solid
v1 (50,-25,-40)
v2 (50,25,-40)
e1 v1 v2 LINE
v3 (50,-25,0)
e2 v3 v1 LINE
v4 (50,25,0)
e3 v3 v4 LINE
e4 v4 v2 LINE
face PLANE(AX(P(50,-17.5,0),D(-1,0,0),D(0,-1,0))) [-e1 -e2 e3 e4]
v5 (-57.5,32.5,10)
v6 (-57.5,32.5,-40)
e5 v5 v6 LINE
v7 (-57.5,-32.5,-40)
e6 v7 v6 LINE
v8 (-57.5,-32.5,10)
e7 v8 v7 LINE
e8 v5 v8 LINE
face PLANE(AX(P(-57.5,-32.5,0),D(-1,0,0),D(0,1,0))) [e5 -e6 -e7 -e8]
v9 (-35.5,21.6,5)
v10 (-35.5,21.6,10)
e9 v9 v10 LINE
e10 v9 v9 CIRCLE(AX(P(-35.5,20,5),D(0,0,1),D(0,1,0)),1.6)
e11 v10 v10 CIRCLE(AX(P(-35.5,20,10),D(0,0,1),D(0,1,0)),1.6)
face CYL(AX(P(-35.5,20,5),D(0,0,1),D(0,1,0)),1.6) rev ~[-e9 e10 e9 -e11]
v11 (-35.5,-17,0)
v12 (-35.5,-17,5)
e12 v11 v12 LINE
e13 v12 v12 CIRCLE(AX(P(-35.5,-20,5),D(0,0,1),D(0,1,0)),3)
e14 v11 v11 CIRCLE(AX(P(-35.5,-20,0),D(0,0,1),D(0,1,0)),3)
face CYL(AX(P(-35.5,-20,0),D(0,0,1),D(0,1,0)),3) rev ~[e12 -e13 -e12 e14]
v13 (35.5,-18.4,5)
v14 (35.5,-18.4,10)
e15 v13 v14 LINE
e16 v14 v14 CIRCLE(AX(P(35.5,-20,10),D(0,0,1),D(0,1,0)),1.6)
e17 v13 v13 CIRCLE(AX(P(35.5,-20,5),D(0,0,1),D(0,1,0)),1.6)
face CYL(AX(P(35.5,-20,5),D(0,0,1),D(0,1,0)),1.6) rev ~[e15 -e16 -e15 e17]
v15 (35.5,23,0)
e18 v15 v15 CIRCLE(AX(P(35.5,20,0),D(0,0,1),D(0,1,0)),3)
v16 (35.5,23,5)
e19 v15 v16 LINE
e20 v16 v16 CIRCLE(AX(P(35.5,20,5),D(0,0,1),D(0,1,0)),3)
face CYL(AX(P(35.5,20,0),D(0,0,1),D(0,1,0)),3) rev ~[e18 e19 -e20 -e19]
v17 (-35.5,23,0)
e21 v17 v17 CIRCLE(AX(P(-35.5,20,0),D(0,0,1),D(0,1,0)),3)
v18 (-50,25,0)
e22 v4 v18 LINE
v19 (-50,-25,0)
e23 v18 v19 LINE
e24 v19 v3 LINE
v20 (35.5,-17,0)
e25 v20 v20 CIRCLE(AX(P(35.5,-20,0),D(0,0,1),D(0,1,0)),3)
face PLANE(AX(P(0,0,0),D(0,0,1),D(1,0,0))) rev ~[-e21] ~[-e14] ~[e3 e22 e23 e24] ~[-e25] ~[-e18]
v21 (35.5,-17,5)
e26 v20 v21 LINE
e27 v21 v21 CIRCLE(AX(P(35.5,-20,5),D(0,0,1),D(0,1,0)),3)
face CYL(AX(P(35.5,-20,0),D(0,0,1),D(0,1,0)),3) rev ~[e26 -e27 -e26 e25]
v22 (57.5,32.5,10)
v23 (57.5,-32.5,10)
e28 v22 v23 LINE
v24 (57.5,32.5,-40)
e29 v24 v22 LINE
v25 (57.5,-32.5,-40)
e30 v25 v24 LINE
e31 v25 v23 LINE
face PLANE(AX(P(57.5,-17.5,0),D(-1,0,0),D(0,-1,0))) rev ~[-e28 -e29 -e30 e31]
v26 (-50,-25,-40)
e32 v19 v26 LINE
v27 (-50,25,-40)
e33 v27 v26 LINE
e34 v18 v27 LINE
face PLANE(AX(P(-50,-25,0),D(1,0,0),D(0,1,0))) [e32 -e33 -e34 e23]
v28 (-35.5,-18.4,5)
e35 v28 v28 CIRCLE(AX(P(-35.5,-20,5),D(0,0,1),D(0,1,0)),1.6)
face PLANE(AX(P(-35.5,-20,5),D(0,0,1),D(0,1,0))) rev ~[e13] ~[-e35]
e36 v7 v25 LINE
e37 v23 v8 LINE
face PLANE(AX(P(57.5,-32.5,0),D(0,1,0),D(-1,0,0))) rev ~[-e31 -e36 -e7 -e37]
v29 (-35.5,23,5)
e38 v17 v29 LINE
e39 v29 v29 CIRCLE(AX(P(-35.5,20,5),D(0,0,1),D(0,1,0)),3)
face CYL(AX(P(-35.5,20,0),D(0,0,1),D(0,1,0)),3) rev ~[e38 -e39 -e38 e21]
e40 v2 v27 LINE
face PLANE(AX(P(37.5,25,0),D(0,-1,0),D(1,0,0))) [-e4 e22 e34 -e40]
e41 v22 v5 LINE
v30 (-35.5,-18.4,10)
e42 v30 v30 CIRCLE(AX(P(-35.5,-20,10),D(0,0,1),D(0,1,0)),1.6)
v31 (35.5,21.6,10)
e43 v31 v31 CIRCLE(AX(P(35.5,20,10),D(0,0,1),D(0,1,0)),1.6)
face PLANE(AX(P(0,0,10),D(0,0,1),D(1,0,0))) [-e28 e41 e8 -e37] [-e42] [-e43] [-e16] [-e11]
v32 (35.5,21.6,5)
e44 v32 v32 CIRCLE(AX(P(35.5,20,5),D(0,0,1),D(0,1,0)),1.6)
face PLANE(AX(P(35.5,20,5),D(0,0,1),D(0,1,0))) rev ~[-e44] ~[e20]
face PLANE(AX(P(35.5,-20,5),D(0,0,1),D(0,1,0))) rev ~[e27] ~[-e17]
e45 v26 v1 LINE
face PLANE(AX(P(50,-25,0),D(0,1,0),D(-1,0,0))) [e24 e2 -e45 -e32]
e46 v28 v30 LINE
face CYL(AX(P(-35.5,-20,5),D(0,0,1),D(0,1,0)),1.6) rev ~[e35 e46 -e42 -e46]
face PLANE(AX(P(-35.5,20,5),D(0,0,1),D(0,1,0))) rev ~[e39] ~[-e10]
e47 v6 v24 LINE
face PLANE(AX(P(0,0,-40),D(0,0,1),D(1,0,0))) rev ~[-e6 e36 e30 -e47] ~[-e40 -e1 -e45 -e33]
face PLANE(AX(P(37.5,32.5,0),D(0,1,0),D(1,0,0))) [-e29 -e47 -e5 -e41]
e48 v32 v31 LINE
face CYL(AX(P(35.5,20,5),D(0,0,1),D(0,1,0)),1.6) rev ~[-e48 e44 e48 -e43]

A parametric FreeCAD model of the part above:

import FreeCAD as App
import Part
import Sketcher


def add_polygon(sketch, points):
    """Adds a closed chain of lines whose ends are joined by coincident constraints."""
    first, n = sketch.GeometryCount, len(points)
    for a, b in zip(points, points[1:] + points[:1]):
        sketch.addGeometry(Part.LineSegment(App.Vector(*a, 0), App.Vector(*b, 0)), False)
    for i in range(n):
        sketch.addConstraint(Sketcher.Constraint("Coincident", first + i, 2, first + (i + 1) % n, 1))

doc = App.newDocument("Part")
body = doc.addObject("PartDesign::Body", "Body")
body.AllowCompound = True

sketch1 = body.newObject("Sketcher::SketchObject", "Sketch")
sketch1.AttachmentSupport = (doc.getObject("XY_Plane"), [""])
sketch1.MapMode = "FlatFace"
add_polygon(sketch1, [(38, -32), (58, -32), (58, -18), (50, -18), (50, -25), (38, -25)])
add_polygon(sketch1, [(-58, -32), (-38, -32), (-38, -25), (-50, -25), (-50, -18), (-58, -18)])
add_polygon(sketch1, [(50, 18), (58, 18), (58, 32), (38, 32), (38, 25), (50, 25)])
add_polygon(sketch1, [(-58, 32), (-58, 18), (-50, 18), (-50, 25), (-38, 25), (-38, 32)])
sketch1.addConstraint([
    Sketcher.Constraint("Horizontal", 0),
    Sketcher.Constraint("Vertical", 1),
    Sketcher.Constraint("Horizontal", 2),
    Sketcher.Constraint("Vertical", 3),
    Sketcher.Constraint("Horizontal", 4),
    Sketcher.Constraint("Vertical", 5),
    Sketcher.Constraint("Horizontal", 6),
    Sketcher.Constraint("Vertical", 7),
    Sketcher.Constraint("Horizontal", 8),
    Sketcher.Constraint("Vertical", 9),
    Sketcher.Constraint("Horizontal", 10),
    Sketcher.Constraint("Vertical", 11),
    Sketcher.Constraint("Horizontal", 12),
    Sketcher.Constraint("Vertical", 13),
    Sketcher.Constraint("Horizontal", 14),
    Sketcher.Constraint("Vertical", 15),
    Sketcher.Constraint("Horizontal", 16),
    Sketcher.Constraint("Vertical", 17),
    Sketcher.Constraint("Vertical", 18),
    Sketcher.Constraint("Horizontal", 19),
    Sketcher.Constraint("Vertical", 20),
    Sketcher.Constraint("Horizontal", 21),
    Sketcher.Constraint("Vertical", 22),
    Sketcher.Constraint("Horizontal", 23),
    Sketcher.Constraint("Symmetric", 10, 2, 12, 2, -1, 1),
    Sketcher.Constraint("Symmetric", 6, 2, 14, 2, -1, 1),
    Sketcher.Constraint("Symmetric", 8, 2, 16, 2, -1, 1),
    Sketcher.Constraint("Symmetric", 1, 2, 18, 2, -1, 1),
    Sketcher.Constraint("Symmetric", 3, 2, 20, 2, -1, 1),
    Sketcher.Constraint("Symmetric", 5, 2, 22, 2, -1, 1),
    Sketcher.Constraint("Symmetric", 5, 2, 6, 2, -2),
    Sketcher.Constraint("Symmetric", 3, 2, 8, 2, -2),
    Sketcher.Constraint("Symmetric", 1, 2, 10, 2, -2),
    Sketcher.Constraint("Equal", 19, 3),
    Sketcher.Constraint("Equal", 3, 5),
    Sketcher.Constraint("DistanceX", 0, 1, 0, 2, 20.0),
    Sketcher.Constraint("DistanceY", 1, 1, 1, 2, 15.0),
    Sketcher.Constraint("DistanceX", -1, 1, 2, 2, 50.0),
    Sketcher.Constraint("DistanceY", 0, 2, 12, 2, 50.0),
])
pad1 = body.newObject("PartDesign::Pad", "Pad")
pad1.Profile = sketch1
pad1.Length = 40
pad1.Reversed = True

sketch2 = body.newObject("Sketcher::SketchObject", "Sketch001")
sketch2.AttachmentSupport = (doc.getObject("XY_Plane"), [""])
sketch2.MapMode = "FlatFace"
add_polygon(sketch2, [(58, -32), (58, 32), (-58, 32), (-58, -32)])
sketch2.addConstraint([
    Sketcher.Constraint("Vertical", 0),
    Sketcher.Constraint("Horizontal", 1),
    Sketcher.Constraint("Vertical", 2),
    Sketcher.Constraint("Horizontal", 3),
    Sketcher.Constraint("Symmetric", 0, 2, 2, 2, -1, 1),
    Sketcher.Constraint("DistanceX", 1, 2, 1, 1, 115.0),
    Sketcher.Constraint("DistanceY", 0, 1, 0, 2, 65.0),
])
pad2 = body.newObject("PartDesign::Pad", "Pad001")
pad2.Profile = sketch2
pad2.Length = 10

sketch3 = body.newObject("Sketcher::SketchObject", "Sketch002")
sketch3.AttachmentSupport = (doc.getObject("XY_Plane"), [""])
sketch3.MapMode = "FlatFace"
sketch3.addGeometry([
    Part.Circle(App.Vector(-35.5, 20, 0), App.Vector(0, 0, 1), 1.6),
    Part.Circle(App.Vector(35.5, 20, 0), App.Vector(0, 0, 1), 1.6),
    Part.Circle(App.Vector(35.5, -20, 0), App.Vector(0, 0, 1), 1.6),
    Part.Circle(App.Vector(-35.5, -20, 0), App.Vector(0, 0, 1), 1.6),
], False)
sketch3.addConstraint([
    Sketcher.Constraint("Equal", 0, 1),
    Sketcher.Constraint("Equal", 1, 2),
    Sketcher.Constraint("Equal", 2, 3),
    Sketcher.Constraint("Symmetric", 0, 3, 2, 3, -1, 1),
    Sketcher.Constraint("Symmetric", 1, 3, 3, 3, -1, 1),
    Sketcher.Constraint("Symmetric", 0, 3, 1, 3, -2),
    Sketcher.Constraint("Diameter", 0, 3.2),
    Sketcher.Constraint("DistanceY", -1, 1, 0, 3, 20.0),
    Sketcher.Constraint("DistanceX", 0, 3, 1, 3, 71.0),
])
doc.recompute()
hole = body.newObject("PartDesign::Hole", "Hole")
hole.Profile = sketch3
hole.ThreadType = "None"
hole.Diameter = 3.2
hole.DepthType = "ThroughAll"
hole.HoleCutType = "Counterbore"
hole.HoleCutDiameter = 6
hole.HoleCutDepth = 5
hole.Reversed = True

sketch4 = body.newObject("Sketcher::SketchObject", "Sketch003")
sketch4.AttachmentSupport = (doc.getObject("XY_Plane"), [""])
sketch4.MapMode = "FlatFace"
add_polygon(sketch4, [(-38, -32), (38, -32), (38, -25), (-38, -25)])
add_polygon(sketch4, [(50, -18), (58, -18), (58, 18), (50, 18)])
add_polygon(sketch4, [(-58, 18), (-58, -18), (-50, -18), (-50, 18)])
add_polygon(sketch4, [(38, 25), (38, 32), (-38, 32), (-38, 25)])
sketch4.addConstraint([
    Sketcher.Constraint("Horizontal", 0),
    Sketcher.Constraint("Vertical", 1),
    Sketcher.Constraint("Horizontal", 2),
    Sketcher.Constraint("Vertical", 3),
    Sketcher.Constraint("Horizontal", 4),
    Sketcher.Constraint("Vertical", 5),
    Sketcher.Constraint("Horizontal", 6),
    Sketcher.Constraint("Vertical", 7),
    Sketcher.Constraint("Vertical", 8),
    Sketcher.Constraint("Horizontal", 9),
    Sketcher.Constraint("Vertical", 10),
    Sketcher.Constraint("Horizontal", 11),
    Sketcher.Constraint("Vertical", 12),
    Sketcher.Constraint("Horizontal", 13),
    Sketcher.Constraint("Vertical", 14),
    Sketcher.Constraint("Horizontal", 15),
    Sketcher.Constraint("Symmetric", 5, 2, 8, 2, -1, 1),
    Sketcher.Constraint("Symmetric", 7, 2, 10, 2, -1, 1),
    Sketcher.Constraint("Symmetric", 3, 2, 12, 2, -1, 1),
    Sketcher.Constraint("Symmetric", 1, 2, 14, 2, -1, 1),
    Sketcher.Constraint("Horizontal", 7, 2, 8, 2),
    Sketcher.Constraint("Vertical", 1, 2, 12, 2),
    Sketcher.Constraint("Equal", 11, 1),
    Sketcher.Constraint("DistanceX", -1, 1, 6, 2, 50.0),
    Sketcher.Constraint("DistanceX", 1, 2, 4, 2, 20.0),
    Sketcher.Constraint("DistanceY", 0, 2, 4, 2, 15.0),
    Sketcher.Constraint("DistanceY", 0, 2, 5, 2, 50.0),
    Sketcher.Constraint("DistanceX", 0, 1, 0, 2, 75.0),
])
pad3 = body.newObject("PartDesign::Pad", "Pad002")
pad3.Profile = sketch4
pad3.Length = 40
pad3.Reversed = True

doc.recompute()
